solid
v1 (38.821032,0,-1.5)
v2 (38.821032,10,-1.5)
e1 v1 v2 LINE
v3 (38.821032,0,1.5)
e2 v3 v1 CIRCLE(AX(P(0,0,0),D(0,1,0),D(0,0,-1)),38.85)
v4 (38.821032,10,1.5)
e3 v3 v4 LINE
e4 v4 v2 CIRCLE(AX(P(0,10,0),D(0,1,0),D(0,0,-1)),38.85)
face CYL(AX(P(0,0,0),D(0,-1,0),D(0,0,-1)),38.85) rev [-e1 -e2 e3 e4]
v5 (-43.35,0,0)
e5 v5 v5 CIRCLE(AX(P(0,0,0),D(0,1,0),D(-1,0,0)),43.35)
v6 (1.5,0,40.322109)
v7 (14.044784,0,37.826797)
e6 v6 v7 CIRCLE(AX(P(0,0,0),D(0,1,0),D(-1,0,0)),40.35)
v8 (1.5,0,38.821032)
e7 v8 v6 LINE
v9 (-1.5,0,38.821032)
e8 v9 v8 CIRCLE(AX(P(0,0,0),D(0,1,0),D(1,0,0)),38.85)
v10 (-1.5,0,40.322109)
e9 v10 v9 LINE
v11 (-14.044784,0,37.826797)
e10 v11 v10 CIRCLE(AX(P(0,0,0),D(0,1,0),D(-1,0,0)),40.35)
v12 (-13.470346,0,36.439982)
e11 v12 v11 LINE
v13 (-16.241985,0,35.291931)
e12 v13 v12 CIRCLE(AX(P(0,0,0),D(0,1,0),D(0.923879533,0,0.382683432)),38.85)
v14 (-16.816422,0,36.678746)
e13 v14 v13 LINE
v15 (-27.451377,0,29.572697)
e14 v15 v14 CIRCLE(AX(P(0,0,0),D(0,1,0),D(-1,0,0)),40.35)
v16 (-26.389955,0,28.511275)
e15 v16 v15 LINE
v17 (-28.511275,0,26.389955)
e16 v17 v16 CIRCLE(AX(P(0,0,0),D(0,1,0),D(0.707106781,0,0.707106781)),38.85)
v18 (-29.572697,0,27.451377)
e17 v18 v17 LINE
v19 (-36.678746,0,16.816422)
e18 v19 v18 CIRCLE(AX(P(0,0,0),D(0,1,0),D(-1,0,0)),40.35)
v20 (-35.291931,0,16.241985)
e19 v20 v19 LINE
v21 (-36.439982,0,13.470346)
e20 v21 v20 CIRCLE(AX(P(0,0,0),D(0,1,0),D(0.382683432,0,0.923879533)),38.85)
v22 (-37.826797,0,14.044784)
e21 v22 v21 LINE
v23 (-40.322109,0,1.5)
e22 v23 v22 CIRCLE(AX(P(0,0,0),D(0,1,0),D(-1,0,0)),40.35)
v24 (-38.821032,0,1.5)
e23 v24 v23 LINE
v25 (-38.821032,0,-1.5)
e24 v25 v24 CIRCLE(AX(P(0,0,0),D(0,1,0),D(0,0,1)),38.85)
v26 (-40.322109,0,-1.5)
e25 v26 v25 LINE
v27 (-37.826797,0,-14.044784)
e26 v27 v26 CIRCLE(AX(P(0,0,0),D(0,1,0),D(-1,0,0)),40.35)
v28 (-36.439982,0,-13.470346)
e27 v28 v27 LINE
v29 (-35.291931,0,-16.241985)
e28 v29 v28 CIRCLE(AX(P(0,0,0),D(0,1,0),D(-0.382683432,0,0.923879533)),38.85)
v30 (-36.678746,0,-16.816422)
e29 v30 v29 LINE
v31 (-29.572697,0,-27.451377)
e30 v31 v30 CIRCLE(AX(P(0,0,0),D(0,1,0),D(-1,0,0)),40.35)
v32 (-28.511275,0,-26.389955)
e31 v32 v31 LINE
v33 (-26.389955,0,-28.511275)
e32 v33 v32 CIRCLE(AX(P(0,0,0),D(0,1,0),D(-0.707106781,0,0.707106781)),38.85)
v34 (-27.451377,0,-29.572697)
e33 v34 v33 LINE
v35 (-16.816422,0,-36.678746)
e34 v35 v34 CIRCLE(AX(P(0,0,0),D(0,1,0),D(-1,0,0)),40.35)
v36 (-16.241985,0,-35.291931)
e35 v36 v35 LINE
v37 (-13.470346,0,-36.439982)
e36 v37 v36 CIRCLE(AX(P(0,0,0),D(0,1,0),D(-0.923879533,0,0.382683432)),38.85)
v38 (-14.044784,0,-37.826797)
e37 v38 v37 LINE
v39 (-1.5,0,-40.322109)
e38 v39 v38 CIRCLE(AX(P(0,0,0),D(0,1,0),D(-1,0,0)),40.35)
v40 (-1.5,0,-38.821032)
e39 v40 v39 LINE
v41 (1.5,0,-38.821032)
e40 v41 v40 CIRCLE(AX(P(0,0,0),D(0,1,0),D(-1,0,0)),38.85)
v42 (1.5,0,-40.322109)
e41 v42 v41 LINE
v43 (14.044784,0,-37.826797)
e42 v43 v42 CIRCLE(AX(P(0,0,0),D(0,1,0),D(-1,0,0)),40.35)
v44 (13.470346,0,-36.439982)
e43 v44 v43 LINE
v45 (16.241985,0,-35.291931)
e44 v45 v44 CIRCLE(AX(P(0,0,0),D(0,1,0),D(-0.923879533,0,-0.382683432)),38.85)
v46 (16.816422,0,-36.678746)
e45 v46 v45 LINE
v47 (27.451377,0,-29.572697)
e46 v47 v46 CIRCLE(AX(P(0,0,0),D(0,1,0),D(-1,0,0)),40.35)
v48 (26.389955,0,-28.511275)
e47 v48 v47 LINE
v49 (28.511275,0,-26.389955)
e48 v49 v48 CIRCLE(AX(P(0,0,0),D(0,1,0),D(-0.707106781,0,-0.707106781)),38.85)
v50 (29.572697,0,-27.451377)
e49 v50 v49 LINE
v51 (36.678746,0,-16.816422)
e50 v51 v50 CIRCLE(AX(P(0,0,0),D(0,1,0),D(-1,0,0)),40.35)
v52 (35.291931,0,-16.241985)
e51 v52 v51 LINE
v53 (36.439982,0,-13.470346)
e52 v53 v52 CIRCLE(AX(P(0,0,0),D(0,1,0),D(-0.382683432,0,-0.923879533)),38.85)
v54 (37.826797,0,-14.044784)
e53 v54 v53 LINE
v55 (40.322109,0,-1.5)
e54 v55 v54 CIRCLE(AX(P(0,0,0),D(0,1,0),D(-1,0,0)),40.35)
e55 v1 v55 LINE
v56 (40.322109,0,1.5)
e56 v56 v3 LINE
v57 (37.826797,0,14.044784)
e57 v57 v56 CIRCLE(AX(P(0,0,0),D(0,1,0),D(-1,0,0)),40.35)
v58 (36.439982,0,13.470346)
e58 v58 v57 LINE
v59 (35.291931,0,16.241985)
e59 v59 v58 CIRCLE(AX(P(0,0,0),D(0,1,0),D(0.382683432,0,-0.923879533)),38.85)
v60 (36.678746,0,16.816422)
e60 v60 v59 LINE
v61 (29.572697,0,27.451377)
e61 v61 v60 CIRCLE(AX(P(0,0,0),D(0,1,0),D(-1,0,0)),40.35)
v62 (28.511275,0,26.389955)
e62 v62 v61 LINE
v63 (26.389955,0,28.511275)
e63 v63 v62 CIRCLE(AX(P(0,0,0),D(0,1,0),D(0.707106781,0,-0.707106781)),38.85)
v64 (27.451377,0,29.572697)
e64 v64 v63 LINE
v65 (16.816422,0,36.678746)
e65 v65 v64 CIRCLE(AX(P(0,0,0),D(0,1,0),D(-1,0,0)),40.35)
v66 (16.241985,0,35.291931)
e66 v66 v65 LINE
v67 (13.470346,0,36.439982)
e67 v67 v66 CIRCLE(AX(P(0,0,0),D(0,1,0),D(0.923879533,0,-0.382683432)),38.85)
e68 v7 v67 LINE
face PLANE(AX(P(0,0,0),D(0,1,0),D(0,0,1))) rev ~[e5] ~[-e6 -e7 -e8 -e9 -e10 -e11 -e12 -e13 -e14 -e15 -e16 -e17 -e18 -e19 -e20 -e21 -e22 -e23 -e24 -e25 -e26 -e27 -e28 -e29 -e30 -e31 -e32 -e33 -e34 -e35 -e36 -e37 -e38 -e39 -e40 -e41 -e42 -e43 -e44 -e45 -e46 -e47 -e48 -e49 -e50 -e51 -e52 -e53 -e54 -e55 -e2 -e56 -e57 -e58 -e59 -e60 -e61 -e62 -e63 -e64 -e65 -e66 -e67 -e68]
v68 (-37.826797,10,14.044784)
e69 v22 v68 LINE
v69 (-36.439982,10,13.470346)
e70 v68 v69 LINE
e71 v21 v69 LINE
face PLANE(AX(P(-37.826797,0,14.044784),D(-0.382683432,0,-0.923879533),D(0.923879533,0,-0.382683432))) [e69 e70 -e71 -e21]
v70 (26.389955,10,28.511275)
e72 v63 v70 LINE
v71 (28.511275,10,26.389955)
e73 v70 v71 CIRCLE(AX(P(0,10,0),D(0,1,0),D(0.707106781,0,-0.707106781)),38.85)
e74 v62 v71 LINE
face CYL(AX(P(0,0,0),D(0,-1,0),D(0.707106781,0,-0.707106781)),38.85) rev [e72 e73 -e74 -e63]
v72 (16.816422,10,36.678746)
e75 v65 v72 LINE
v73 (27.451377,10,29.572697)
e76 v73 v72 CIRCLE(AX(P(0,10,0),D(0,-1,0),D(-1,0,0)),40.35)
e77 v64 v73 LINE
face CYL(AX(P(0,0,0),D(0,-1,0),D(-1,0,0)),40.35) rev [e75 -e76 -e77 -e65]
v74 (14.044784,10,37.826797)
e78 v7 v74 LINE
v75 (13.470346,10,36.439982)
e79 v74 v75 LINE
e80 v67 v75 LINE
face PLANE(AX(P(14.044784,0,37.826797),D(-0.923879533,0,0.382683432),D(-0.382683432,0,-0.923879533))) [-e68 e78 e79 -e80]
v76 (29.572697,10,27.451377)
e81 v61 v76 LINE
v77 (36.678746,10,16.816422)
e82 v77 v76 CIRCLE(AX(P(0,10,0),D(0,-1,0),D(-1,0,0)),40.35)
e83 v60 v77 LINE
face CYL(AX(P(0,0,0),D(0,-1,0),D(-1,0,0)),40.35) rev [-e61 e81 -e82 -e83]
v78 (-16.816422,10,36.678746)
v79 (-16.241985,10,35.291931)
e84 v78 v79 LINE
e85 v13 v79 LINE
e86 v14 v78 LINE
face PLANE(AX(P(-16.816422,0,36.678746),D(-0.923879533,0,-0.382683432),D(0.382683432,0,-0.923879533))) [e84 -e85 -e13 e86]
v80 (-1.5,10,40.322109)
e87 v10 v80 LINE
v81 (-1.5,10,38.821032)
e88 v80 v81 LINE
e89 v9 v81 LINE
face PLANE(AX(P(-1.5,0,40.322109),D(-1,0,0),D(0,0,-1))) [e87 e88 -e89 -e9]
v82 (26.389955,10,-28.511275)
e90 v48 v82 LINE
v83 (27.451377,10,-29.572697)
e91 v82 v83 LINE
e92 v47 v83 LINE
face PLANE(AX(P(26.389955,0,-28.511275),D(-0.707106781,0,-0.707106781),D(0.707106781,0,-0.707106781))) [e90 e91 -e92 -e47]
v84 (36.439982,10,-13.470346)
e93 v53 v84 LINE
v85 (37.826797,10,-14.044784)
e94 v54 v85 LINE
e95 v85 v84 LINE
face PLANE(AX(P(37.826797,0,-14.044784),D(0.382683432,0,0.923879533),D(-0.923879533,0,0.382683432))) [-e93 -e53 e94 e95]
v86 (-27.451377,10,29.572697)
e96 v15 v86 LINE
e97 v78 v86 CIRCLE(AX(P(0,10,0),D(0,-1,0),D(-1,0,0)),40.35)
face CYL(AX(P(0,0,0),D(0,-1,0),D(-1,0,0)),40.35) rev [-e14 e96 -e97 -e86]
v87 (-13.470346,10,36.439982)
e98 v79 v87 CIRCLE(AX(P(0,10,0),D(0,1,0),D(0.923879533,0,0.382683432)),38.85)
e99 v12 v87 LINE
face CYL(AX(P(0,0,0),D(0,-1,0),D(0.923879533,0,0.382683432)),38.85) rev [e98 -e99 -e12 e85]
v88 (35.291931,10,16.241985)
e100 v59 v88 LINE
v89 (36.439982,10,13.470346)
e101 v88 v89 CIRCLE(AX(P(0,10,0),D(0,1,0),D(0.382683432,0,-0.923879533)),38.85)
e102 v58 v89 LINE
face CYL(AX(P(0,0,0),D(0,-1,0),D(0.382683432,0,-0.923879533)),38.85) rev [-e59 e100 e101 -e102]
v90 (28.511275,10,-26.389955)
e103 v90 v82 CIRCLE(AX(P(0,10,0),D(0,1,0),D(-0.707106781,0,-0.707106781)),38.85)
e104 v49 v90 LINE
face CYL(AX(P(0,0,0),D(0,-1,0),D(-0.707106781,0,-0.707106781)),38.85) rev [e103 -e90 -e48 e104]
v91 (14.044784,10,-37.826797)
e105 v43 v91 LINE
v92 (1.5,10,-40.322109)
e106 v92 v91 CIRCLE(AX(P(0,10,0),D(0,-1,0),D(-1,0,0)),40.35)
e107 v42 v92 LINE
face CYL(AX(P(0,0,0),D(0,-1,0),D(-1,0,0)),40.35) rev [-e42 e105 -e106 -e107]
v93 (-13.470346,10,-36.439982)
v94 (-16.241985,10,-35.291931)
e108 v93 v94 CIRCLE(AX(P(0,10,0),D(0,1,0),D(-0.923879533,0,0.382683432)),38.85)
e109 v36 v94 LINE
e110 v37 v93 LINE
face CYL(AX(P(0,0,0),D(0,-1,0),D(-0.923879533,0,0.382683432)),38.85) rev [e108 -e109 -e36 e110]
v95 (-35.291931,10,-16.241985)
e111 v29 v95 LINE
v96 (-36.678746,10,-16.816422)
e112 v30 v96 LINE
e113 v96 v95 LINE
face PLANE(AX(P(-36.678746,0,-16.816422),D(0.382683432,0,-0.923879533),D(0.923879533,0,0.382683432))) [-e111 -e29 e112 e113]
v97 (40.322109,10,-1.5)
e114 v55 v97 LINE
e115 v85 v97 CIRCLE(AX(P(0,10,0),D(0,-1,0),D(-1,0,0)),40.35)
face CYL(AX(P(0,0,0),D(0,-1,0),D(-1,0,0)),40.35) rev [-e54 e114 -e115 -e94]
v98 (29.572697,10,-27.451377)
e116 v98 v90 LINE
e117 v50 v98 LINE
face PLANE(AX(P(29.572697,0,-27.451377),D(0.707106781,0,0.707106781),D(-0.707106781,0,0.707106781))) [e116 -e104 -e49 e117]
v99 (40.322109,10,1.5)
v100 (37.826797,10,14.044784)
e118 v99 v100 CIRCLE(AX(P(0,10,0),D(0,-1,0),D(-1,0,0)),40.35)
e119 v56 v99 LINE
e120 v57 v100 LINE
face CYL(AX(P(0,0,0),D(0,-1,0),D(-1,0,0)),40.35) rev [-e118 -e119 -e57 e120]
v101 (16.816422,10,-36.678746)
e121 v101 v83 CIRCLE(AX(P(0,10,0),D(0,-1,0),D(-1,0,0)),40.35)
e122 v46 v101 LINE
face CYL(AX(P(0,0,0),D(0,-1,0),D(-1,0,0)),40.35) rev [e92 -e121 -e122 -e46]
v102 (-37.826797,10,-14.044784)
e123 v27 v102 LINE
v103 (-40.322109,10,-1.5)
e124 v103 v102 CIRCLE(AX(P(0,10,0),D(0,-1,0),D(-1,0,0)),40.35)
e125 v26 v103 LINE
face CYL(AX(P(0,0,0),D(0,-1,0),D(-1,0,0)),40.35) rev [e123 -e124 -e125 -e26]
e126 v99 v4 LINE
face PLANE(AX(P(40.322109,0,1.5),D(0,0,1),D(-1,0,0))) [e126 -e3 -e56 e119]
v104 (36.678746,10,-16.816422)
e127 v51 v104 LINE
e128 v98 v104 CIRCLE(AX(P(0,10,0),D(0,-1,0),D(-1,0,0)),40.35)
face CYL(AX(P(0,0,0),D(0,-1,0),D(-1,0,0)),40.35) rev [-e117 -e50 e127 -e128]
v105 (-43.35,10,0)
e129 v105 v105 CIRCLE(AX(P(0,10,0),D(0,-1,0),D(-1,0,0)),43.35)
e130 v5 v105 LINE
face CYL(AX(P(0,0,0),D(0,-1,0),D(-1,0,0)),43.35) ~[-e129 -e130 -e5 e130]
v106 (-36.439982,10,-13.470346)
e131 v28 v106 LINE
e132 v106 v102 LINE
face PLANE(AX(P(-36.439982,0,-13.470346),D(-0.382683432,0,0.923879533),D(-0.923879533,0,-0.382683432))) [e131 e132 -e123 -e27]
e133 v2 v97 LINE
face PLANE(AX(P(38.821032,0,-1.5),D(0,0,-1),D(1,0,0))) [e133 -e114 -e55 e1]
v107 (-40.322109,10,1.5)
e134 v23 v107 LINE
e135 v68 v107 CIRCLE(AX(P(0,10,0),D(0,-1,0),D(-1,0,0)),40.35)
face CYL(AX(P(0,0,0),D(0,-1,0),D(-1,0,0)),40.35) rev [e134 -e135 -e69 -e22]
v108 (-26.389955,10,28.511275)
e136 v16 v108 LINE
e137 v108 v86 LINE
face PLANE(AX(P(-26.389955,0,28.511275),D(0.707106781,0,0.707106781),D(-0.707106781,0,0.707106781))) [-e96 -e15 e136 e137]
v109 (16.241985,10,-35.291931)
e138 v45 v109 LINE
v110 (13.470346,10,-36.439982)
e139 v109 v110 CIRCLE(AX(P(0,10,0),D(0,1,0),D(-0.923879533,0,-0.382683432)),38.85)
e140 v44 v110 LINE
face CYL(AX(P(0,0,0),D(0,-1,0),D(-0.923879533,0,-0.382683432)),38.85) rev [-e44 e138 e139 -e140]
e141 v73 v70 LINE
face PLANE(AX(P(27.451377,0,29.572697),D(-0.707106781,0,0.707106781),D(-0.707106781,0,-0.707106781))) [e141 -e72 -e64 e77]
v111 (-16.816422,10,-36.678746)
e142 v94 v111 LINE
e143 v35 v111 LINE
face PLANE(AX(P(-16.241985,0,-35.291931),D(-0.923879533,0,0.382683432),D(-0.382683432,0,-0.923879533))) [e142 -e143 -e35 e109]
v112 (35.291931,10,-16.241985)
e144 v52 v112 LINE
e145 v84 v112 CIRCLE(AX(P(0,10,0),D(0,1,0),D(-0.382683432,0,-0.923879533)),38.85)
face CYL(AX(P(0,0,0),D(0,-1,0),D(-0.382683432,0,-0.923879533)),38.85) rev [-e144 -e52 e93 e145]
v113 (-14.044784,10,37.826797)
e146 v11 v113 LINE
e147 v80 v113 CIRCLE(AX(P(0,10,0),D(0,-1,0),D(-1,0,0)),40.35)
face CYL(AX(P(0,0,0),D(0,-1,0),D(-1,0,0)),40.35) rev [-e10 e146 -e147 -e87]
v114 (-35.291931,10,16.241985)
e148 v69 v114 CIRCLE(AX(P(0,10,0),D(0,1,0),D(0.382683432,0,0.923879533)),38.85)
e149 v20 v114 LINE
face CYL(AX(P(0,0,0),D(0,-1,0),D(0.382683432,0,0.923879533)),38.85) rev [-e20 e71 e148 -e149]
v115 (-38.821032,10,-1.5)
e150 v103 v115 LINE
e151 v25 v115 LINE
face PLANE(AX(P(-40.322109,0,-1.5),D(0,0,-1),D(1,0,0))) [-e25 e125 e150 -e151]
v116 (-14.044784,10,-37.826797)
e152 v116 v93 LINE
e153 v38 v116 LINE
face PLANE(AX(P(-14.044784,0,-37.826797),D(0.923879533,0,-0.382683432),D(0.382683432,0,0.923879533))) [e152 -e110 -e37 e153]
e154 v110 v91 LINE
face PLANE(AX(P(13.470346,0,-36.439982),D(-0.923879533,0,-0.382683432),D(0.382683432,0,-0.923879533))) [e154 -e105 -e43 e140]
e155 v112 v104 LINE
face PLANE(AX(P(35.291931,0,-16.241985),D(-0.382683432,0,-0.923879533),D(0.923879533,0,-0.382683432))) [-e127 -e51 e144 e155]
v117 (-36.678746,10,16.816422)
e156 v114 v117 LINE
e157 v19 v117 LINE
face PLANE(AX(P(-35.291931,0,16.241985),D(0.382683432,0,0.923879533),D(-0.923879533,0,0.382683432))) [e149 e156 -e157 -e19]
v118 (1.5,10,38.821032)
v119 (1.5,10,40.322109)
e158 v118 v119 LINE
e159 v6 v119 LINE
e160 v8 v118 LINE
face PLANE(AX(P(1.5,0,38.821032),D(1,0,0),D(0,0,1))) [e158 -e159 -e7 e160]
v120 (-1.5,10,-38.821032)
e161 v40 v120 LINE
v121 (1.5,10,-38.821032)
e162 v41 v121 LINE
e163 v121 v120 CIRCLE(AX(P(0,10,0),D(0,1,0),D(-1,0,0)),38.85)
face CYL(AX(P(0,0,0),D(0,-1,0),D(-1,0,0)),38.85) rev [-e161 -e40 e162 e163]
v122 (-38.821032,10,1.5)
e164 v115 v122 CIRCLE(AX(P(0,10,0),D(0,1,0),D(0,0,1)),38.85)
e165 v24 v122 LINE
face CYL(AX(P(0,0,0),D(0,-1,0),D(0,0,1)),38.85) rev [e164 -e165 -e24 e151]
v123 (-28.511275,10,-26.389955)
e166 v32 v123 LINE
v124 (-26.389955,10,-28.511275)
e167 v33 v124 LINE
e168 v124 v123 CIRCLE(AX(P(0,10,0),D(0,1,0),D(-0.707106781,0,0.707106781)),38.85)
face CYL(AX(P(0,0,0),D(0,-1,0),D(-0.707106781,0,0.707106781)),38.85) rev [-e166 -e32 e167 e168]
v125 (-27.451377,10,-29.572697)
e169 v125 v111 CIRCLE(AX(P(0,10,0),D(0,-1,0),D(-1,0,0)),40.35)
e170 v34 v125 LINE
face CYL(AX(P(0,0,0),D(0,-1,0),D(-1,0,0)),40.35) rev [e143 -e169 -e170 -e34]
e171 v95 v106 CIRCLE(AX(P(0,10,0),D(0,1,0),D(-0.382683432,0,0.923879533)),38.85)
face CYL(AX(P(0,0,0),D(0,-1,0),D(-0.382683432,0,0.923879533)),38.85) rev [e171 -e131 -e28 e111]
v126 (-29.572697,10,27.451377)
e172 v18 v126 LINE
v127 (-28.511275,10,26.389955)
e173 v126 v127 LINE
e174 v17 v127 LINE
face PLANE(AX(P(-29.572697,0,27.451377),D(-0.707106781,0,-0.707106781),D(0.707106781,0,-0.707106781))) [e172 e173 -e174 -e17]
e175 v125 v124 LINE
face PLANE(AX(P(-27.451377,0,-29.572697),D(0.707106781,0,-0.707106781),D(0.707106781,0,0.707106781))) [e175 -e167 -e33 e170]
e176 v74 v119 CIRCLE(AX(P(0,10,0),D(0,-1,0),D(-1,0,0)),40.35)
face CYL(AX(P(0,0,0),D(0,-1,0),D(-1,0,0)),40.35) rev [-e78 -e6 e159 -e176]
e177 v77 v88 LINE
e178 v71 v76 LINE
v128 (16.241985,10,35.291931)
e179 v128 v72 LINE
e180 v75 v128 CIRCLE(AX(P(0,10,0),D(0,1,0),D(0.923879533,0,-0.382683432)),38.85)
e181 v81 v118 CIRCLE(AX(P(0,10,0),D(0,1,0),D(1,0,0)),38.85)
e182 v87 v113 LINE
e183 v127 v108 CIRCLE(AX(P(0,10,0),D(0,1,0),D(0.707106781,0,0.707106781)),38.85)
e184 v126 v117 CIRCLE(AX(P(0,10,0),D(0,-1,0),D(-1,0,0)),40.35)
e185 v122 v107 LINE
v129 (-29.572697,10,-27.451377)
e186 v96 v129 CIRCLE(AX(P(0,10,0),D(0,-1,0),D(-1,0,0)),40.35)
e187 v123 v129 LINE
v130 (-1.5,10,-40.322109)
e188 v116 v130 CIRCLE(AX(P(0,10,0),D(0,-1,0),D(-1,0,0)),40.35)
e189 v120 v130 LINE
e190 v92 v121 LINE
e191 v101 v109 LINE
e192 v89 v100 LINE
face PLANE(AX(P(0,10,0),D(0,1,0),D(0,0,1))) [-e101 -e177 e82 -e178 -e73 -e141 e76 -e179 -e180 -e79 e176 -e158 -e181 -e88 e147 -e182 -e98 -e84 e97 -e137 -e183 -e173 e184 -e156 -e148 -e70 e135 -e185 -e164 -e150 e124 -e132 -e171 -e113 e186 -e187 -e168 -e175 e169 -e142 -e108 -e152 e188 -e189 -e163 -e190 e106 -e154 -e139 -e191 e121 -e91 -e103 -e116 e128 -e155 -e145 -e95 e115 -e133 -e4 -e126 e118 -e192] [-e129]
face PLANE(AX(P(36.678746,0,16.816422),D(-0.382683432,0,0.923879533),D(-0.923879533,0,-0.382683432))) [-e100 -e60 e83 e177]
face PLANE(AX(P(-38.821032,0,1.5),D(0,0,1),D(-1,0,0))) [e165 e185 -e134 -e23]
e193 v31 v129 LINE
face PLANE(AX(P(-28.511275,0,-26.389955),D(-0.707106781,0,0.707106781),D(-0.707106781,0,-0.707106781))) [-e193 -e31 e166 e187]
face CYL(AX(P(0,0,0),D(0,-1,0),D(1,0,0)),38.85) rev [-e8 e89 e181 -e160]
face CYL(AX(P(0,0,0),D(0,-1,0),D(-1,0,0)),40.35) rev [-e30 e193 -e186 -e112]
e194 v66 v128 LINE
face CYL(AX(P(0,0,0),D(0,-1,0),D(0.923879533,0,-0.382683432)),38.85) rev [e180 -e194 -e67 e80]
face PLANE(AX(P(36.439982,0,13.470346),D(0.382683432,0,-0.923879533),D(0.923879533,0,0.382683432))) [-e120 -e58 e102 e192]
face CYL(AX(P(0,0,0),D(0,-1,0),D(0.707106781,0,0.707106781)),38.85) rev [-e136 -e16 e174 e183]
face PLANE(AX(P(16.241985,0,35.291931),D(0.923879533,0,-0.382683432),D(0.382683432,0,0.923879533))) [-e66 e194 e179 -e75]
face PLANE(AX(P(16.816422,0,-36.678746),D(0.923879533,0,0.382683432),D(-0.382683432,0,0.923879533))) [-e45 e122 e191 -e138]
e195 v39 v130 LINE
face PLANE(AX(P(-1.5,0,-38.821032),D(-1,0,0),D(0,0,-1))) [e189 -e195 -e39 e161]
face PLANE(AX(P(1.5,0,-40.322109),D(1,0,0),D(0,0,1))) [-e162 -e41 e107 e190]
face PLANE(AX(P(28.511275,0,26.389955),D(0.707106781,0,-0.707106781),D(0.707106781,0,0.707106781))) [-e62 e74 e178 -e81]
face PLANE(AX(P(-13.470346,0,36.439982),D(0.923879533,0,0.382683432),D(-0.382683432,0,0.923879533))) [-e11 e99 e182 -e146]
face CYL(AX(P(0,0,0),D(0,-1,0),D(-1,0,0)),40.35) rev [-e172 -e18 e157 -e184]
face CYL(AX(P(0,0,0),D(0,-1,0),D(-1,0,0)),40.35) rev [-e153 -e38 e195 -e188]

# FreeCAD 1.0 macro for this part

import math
import FreeCAD as App
import Part
import Sketcher

doc = App.newDocument("Part")
params = doc.addObject("Spreadsheet::Sheet", "Params")
for row, (alias, value) in enumerate([
    ("sketch1_diameter", "86.7 mm"),
    ("sketch1_diameter2", "80.7 mm"),
    ("pad1_length", "10 mm"),
    ("sketch2_radius", "38.85 mm"),
    ("sketch2_radius2", "40.35 mm"),
    ("pad2_length", "10 mm"),
], start=1):
    params.set(f"A{row}", alias)
    params.set(f"B{row}", "=" + value)
    params.setAlias(f"B{row}", alias)

body = doc.addObject("PartDesign::Body", "Body")

sketch1 = doc.addObject("Sketcher::SketchObject", "Sketch")
body.addObject(sketch1)
sketch1.AttachmentSupport = (doc.XZ_Plane, [""])
sketch1.MapMode = "FlatFace"
sketch1.addGeometry([
    Part.Circle(App.Vector(0, 0, 0), App.Vector(0, 0, 1), 43),
    Part.Circle(App.Vector(0, 0, 0), App.Vector(0, 0, 1), 40),
], False)
sketch1.addConstraint([
    Sketcher.Constraint("Coincident", 0, 3, -1, 1),
    Sketcher.Constraint("Coincident", 1, 3, -1, 1),
    Sketcher.Constraint("Diameter", 0, 86.7),
    Sketcher.Constraint("Diameter", 1, 80.7),
])
sketch1.setExpression("Constraints[2]", "Params.sketch1_diameter")
sketch1.setExpression("Constraints[3]", "Params.sketch1_diameter2")
pad1 = doc.addObject("PartDesign::Pad", "Pad")
body.addObject(pad1)
pad1.Profile = sketch1
pad1.setExpression("Length", "Params.pad1_length")
pad1.Reversed = True

sketch2 = doc.addObject("Sketcher::SketchObject", "Sketch001")
body.addObject(sketch2)
sketch2.AttachmentSupport = (doc.XZ_Plane, [""])
sketch2.MapMode = "FlatFace"
sketch2.addGeometry([
    Part.ArcOfCircle(Part.Circle(App.Vector(0, 0, 0), App.Vector(0, 0, 1), 38.9), math.radians(-92.21), math.radians(-87.79)),
    Part.LineSegment(App.Vector(1.5, -38.8, 0), App.Vector(1.5, -40.3, 0)),
    Part.ArcOfCircle(Part.Circle(App.Vector(0, 0, 0), App.Vector(0, 0, 1), 40.4), math.radians(-92.13), math.radians(-87.87)),
    Part.LineSegment(App.Vector(-1.5, -40.3, 0), App.Vector(-1.5, -38.8, 0)),
], False)
sketch2.addConstraint([
    Sketcher.Constraint("Coincident", 0, 2, 1, 1),
    Sketcher.Constraint("Coincident", 1, 2, 2, 2),
    Sketcher.Constraint("Coincident", 2, 1, 3, 1),
    Sketcher.Constraint("Coincident", 3, 2, 0, 1),
    Sketcher.Constraint("Vertical", 1),
    Sketcher.Constraint("Vertical", 3),
    Sketcher.Constraint("Coincident", 0, 3, -1, 1),
    Sketcher.Constraint("Coincident", 2, 3, -1, 1),
    Sketcher.Constraint("Horizontal", 1, 2, 2, 1),
    Sketcher.Constraint("DistanceX", 2, 1, 1, 2, 3.0),
    Sketcher.Constraint("Radius", 0, 38.85),
    Sketcher.Constraint("Radius", 2, 40.35),
])
sketch2.setExpression("Constraints[10]", "Params.sketch2_radius")
sketch2.setExpression("Constraints[11]", "Params.sketch2_radius2")
pad2 = doc.addObject("PartDesign::Pad", "Pad001")
body.addObject(pad2)
pad2.Profile = sketch2
pad2.setExpression("Length", "Params.pad2_length")
pad2.Reversed = True
doc.recompute()

polarpattern = doc.addObject("PartDesign::PolarPattern", "PolarPattern")
body.addObject(polarpattern)
polarpattern.Originals = [pad2]
polarpattern.Axis = (doc.Y_Axis, [""])
polarpattern.Angle = 360
polarpattern.Occurrences = 16
body.Tip = polarpattern

doc.recompute()
